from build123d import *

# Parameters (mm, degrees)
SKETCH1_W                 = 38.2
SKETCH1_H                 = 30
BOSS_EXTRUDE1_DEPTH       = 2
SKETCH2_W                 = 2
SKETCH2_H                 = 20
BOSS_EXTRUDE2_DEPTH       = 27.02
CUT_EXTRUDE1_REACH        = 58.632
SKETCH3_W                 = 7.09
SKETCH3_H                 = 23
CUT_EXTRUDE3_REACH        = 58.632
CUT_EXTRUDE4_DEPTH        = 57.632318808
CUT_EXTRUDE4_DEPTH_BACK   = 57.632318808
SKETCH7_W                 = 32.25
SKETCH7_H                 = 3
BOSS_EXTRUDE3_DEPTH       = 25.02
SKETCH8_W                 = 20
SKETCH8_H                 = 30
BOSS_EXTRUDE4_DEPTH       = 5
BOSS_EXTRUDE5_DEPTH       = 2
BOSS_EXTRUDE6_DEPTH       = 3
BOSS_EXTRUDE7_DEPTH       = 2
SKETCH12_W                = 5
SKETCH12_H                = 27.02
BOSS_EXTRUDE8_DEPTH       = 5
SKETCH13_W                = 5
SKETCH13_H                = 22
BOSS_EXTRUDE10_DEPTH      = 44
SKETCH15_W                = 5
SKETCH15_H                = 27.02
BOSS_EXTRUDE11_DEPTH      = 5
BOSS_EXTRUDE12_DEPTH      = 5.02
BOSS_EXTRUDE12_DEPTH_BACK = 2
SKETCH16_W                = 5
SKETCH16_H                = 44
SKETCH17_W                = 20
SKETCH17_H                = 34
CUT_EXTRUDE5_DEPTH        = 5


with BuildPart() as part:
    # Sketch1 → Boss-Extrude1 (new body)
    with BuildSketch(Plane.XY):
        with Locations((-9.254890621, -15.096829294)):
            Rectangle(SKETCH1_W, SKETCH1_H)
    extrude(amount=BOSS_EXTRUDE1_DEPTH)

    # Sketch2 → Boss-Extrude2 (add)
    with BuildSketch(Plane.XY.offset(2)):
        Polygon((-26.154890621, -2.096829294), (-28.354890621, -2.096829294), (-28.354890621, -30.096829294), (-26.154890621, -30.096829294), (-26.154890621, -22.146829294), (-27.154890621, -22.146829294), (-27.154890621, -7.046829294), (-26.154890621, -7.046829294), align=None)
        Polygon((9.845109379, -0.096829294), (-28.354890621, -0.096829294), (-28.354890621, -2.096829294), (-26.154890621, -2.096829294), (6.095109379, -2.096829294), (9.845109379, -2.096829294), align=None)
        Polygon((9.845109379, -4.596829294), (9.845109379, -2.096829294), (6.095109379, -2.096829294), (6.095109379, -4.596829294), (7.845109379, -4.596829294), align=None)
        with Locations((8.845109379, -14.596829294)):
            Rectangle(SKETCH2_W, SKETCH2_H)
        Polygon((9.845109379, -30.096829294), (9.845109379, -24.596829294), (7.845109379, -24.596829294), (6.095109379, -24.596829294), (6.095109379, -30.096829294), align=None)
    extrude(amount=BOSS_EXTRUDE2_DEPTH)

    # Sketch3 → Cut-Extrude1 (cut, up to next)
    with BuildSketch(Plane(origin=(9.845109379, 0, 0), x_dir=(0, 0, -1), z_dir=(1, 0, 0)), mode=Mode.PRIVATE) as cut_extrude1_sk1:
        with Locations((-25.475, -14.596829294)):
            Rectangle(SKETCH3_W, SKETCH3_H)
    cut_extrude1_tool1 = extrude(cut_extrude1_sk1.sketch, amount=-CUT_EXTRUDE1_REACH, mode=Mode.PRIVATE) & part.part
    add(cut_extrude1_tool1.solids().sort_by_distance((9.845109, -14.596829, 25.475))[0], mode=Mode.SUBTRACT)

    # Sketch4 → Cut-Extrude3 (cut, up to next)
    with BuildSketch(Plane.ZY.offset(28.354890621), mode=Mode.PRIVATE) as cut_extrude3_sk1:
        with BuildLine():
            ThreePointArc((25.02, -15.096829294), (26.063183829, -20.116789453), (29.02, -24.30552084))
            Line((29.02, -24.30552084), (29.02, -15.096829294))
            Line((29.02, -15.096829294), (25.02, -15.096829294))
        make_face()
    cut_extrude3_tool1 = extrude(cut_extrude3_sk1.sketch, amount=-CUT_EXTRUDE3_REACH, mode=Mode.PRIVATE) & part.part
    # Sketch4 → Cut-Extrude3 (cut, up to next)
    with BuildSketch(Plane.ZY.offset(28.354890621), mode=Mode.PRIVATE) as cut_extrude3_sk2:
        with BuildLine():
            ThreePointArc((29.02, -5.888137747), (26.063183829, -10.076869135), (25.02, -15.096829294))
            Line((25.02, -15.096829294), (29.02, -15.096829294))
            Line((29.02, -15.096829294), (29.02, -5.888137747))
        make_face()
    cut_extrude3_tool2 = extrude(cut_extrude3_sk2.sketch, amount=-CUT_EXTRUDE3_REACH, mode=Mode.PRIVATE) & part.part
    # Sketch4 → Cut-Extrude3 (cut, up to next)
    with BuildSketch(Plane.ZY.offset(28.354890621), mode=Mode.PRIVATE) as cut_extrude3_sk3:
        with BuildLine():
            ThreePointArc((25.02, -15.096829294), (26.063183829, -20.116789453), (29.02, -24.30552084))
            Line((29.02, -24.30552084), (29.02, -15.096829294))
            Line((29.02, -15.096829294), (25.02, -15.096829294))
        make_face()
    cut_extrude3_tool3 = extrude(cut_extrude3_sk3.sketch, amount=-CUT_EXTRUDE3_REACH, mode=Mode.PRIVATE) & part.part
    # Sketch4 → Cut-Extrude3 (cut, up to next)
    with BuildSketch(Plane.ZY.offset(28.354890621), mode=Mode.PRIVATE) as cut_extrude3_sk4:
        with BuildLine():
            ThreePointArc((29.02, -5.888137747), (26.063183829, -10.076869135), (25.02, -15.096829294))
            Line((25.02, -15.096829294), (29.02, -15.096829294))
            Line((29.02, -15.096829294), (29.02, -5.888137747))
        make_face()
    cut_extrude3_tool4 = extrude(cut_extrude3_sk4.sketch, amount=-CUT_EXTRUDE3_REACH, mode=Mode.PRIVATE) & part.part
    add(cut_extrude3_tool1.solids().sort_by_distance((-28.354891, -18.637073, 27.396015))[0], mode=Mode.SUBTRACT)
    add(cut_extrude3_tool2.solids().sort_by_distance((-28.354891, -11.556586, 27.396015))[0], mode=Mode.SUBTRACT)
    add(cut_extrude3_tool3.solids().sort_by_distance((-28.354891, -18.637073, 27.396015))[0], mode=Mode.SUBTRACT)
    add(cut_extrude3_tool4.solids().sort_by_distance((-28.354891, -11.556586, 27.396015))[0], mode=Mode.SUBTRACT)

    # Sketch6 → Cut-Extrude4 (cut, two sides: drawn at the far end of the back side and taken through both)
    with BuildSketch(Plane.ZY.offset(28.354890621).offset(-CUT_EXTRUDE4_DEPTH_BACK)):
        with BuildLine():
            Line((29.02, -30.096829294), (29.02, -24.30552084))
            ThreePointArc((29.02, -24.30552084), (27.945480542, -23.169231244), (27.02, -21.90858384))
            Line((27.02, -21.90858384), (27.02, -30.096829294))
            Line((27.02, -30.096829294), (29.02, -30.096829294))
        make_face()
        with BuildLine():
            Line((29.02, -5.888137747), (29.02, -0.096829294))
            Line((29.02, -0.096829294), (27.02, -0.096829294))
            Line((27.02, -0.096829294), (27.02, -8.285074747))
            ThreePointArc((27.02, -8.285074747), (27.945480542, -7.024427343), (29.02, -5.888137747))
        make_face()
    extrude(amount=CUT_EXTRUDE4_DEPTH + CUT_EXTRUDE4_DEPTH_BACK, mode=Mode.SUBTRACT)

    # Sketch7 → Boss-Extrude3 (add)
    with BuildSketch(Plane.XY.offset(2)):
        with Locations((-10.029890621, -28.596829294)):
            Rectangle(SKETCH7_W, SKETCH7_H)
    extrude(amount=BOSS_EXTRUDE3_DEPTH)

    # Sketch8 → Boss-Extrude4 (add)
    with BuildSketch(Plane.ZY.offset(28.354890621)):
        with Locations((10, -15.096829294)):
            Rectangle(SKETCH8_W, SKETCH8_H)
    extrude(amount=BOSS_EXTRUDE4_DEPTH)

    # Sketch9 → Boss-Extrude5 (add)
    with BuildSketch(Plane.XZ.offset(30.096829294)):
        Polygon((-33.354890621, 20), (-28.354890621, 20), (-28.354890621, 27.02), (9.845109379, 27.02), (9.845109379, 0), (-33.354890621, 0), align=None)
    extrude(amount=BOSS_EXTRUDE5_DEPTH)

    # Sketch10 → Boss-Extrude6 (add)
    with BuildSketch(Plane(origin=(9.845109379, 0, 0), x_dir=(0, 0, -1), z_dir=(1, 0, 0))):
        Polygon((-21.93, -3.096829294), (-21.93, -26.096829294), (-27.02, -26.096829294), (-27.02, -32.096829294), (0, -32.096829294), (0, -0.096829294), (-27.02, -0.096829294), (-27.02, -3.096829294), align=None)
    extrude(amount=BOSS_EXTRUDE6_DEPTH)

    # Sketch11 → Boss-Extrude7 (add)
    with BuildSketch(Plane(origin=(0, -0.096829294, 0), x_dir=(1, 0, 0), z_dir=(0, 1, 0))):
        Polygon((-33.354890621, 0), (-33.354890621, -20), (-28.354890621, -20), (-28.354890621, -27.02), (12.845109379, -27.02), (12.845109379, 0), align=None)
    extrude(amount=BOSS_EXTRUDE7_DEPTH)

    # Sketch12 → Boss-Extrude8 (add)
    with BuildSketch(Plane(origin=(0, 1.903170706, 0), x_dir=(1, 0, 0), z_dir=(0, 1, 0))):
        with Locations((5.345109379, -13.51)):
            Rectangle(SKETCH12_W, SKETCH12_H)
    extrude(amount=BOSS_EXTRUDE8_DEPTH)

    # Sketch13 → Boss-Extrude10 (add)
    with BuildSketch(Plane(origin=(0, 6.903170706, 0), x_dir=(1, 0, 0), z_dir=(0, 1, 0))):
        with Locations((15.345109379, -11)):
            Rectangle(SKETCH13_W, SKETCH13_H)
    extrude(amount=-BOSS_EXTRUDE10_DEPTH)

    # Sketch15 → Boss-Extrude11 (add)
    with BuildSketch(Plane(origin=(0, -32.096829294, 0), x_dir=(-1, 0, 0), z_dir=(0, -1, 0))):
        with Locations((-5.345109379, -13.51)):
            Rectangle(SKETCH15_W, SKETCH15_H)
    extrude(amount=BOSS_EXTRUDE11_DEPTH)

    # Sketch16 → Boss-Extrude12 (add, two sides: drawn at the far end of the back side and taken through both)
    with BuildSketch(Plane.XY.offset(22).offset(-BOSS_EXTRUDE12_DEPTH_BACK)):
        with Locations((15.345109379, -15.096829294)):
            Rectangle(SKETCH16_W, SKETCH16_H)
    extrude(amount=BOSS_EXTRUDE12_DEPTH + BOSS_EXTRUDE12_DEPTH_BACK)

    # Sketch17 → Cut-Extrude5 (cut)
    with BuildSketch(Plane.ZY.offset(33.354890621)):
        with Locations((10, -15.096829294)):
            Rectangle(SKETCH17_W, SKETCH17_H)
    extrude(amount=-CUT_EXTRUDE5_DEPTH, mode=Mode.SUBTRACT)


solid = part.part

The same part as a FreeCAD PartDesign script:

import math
import FreeCAD as App
import Part
import Sketcher

V = App.Vector

doc = App.newDocument("Part")
body = doc.addObject("PartDesign::Body", "Body")

sketch1 = body.newObject("Sketcher::SketchObject", "Sketch")
sketch1.AttachmentSupport = (doc.getObject("XY_Plane"), [""])
sketch1.MapMode = "FlatFace"
sketch1.addGeometry(Part.LineSegment(V(-28, 0, 0), V(-28, -30, 0)), False)
sketch1.addGeometry(Part.LineSegment(V(-28, -30, 0), V(10, -30, 0)), False)
sketch1.addGeometry(Part.LineSegment(V(10, -30, 0), V(10, 0, 0)), False)
sketch1.addGeometry(Part.LineSegment(V(10, 0, 0), V(-28, 0, 0)), False)
sketch1.addConstraint(Sketcher.Constraint("Coincident", 0, 2, 1, 1))
sketch1.addConstraint(Sketcher.Constraint("Coincident", 1, 2, 2, 1))
sketch1.addConstraint(Sketcher.Constraint("Coincident", 2, 2, 3, 1))
sketch1.addConstraint(Sketcher.Constraint("Coincident", 3, 2, 0, 1))
sketch1.addConstraint(Sketcher.Constraint("Vertical", 0))
sketch1.addConstraint(Sketcher.Constraint("Horizontal", 1))
sketch1.addConstraint(Sketcher.Constraint("Vertical", 2))
sketch1.addConstraint(Sketcher.Constraint("Horizontal", 3))
sketch1.addConstraint(Sketcher.Constraint("DistanceY", 0, 2, 0, 1, 30.0))
sketch1.addConstraint(Sketcher.Constraint("DistanceX", 1, 1, 1, 2, 38.2))
sketch1.addConstraint(Sketcher.Constraint("DistanceX", 0, 2, -1, 1, 28.354891))
sketch1.addConstraint(Sketcher.Constraint("DistanceY", 0, 2, -1, 1, 30.096829))
pad1 = body.newObject("PartDesign::Pad", "Pad")
pad1.Profile = sketch1
pad1.Length = 2

sketch2 = body.newObject("Sketcher::SketchObject", "Sketch001")
sketch2.AttachmentSupport = (doc.getObject("XY_Plane"), [""])
sketch2.MapMode = "FlatFace"
sketch2.AttachmentOffset = App.Placement(V(0, 0, 2), App.Rotation())
sketch2.addGeometry(Part.LineSegment(V(-28.4, -30.1, 0), V(-26.2, -30.1, 0)), False)
sketch2.addGeometry(Part.LineSegment(V(-26.2, -30.1, 0), V(-26.2, -22.1, 0)), False)
sketch2.addGeometry(Part.LineSegment(V(-26.2, -22.1, 0), V(-27.2, -22.1, 0)), False)
sketch2.addGeometry(Part.LineSegment(V(-27.2, -22.1, 0), V(-27.2, -7, 0)), False)
sketch2.addGeometry(Part.LineSegment(V(-27.2, -7, 0), V(-26.2, -7, 0)), False)
sketch2.addGeometry(Part.LineSegment(V(-26.2, -7, 0), V(-26.2, -2.1, 0)), False)
sketch2.addGeometry(Part.LineSegment(V(-26.2, -2.1, 0), V(6.1, -2.1, 0)), False)
sketch2.addGeometry(Part.LineSegment(V(6.1, -2.1, 0), V(6.1, -4.6, 0)), False)
sketch2.addGeometry(Part.LineSegment(V(6.1, -4.6, 0), V(7.8, -4.6, 0)), False)
sketch2.addGeometry(Part.LineSegment(V(7.8, -4.6, 0), V(7.8, -24.6, 0)), False)
sketch2.addGeometry(Part.LineSegment(V(7.8, -24.6, 0), V(6.1, -24.6, 0)), False)
sketch2.addGeometry(Part.LineSegment(V(6.1, -24.6, 0), V(6.1, -30.1, 0)), False)
sketch2.addGeometry(Part.LineSegment(V(6.1, -30.1, 0), V(9.8, -30.1, 0)), False)
sketch2.addGeometry(Part.LineSegment(V(9.8, -30.1, 0), V(9.8, -0.1, 0)), False)
sketch2.addGeometry(Part.LineSegment(V(9.8, -0.1, 0), V(-28.4, -0.1, 0)), False)
sketch2.addGeometry(Part.LineSegment(V(-28.4, -0.1, 0), V(-28.4, -30.1, 0)), False)
sketch2.addConstraint(Sketcher.Constraint("Coincident", 0, 2, 1, 1))
sketch2.addConstraint(Sketcher.Constraint("Coincident", 1, 2, 2, 1))
sketch2.addConstraint(Sketcher.Constraint("Coincident", 2, 2, 3, 1))
sketch2.addConstraint(Sketcher.Constraint("Coincident", 3, 2, 4, 1))
sketch2.addConstraint(Sketcher.Constraint("Coincident", 4, 2, 5, 1))
sketch2.addConstraint(Sketcher.Constraint("Coincident", 5, 2, 6, 1))
sketch2.addConstraint(Sketcher.Constraint("Coincident", 6, 2, 7, 1))
sketch2.addConstraint(Sketcher.Constraint("Coincident", 7, 2, 8, 1))
sketch2.addConstraint(Sketcher.Constraint("Coincident", 8, 2, 9, 1))
sketch2.addConstraint(Sketcher.Constraint("Coincident", 9, 2, 10, 1))
sketch2.addConstraint(Sketcher.Constraint("Coincident", 10, 2, 11, 1))
sketch2.addConstraint(Sketcher.Constraint("Coincident", 11, 2, 12, 1))
sketch2.addConstraint(Sketcher.Constraint("Coincident", 12, 2, 13, 1))
sketch2.addConstraint(Sketcher.Constraint("Coincident", 13, 2, 14, 1))
sketch2.addConstraint(Sketcher.Constraint("Coincident", 14, 2, 15, 1))
sketch2.addConstraint(Sketcher.Constraint("Coincident", 15, 2, 0, 1))
sketch2.addConstraint(Sketcher.Constraint("Horizontal", 0))
sketch2.addConstraint(Sketcher.Constraint("Vertical", 1))
sketch2.addConstraint(Sketcher.Constraint("Horizontal", 2))
sketch2.addConstraint(Sketcher.Constraint("Vertical", 3))
sketch2.addConstraint(Sketcher.Constraint("Horizontal", 4))
sketch2.addConstraint(Sketcher.Constraint("Vertical", 5))
sketch2.addConstraint(Sketcher.Constraint("Horizontal", 6))
sketch2.addConstraint(Sketcher.Constraint("Vertical", 7))
sketch2.addConstraint(Sketcher.Constraint("Horizontal", 8))
sketch2.addConstraint(Sketcher.Constraint("Vertical", 9))
sketch2.addConstraint(Sketcher.Constraint("Horizontal", 10))
sketch2.addConstraint(Sketcher.Constraint("Vertical", 11))
sketch2.addConstraint(Sketcher.Constraint("Horizontal", 12))
sketch2.addConstraint(Sketcher.Constraint("Vertical", 13))
sketch2.addConstraint(Sketcher.Constraint("Horizontal", 14))
sketch2.addConstraint(Sketcher.Constraint("Vertical", 15))
sketch2.addConstraint(Sketcher.Constraint("Horizontal", 0, 2, 11, 2))
sketch2.addConstraint(Sketcher.Constraint("Vertical", 1, 2, 4, 2))
sketch2.addConstraint(Sketcher.Constraint("Vertical", 7, 2, 10, 2))
sketch2.addConstraint(Sketcher.Constraint("DistanceX", 2, 2, 2, 1, 1.0))
sketch2.addConstraint(Sketcher.Constraint("DistanceY", 9, 2, 9, 1, 20.0))
sketch2.addConstraint(Sketcher.Constraint("DistanceY", 13, 1, 13, 2, 30.0))
sketch2.addConstraint(Sketcher.Constraint("DistanceX", 0, 1, 0, 2, 2.2))
sketch2.addConstraint(Sketcher.Constraint("DistanceX", 14, 2, 14, 1, 38.2))
sketch2.addConstraint(Sketcher.Constraint("DistanceY", 3, 1, 3, 2, 15.1))
sketch2.addConstraint(Sketcher.Constraint("DistanceY", 7, 2, 7, 1, 2.5))
sketch2.addConstraint(Sketcher.Constraint("DistanceY", 11, 2, 11, 1, 5.5))
sketch2.addConstraint(Sketcher.Constraint("DistanceX", 4, 2, 8, 2, 34.0))
sketch2.addConstraint(Sketcher.Constraint("DistanceX", 6, 1, 6, 2, 32.25))
sketch2.addConstraint(Sketcher.Constraint("DistanceY", 1, 1, 1, 2, 7.95))
sketch2.addConstraint(Sketcher.Constraint("DistanceX", 0, 2, -1, 1, 26.154891))
sketch2.addConstraint(Sketcher.Constraint("DistanceY", 0, 2, -1, 1, 30.096829))
pad2 = body.newObject("PartDesign::Pad", "Pad001")
pad2.Profile = sketch2
pad2.Length = 27.02

sketch3 = body.newObject("Sketcher::SketchObject", "Sketch002")
sketch3.AttachmentSupport = (doc.getObject("YZ_Plane"), [""])
sketch3.MapMode = "FlatFace"
sketch3.AttachmentOffset = App.Placement(V(0, 0, 9.845109), App.Rotation())
sketch3.addGeometry(Part.LineSegment(V(-3, 29, 0), V(-26, 29, 0)), False)
sketch3.addGeometry(Part.LineSegment(V(-26, 29, 0), V(-26, 22, 0)), False)
sketch3.addGeometry(Part.LineSegment(V(-26, 22, 0), V(-3, 22, 0)), False)
sketch3.addGeometry(Part.LineSegment(V(-3, 22, 0), V(-3, 29, 0)), False)
sketch3.addConstraint(Sketcher.Constraint("Coincident", 0, 2, 1, 1))
sketch3.addConstraint(Sketcher.Constraint("Coincident", 1, 2, 2, 1))
sketch3.addConstraint(Sketcher.Constraint("Coincident", 2, 2, 3, 1))
sketch3.addConstraint(Sketcher.Constraint("Coincident", 3, 2, 0, 1))
sketch3.addConstraint(Sketcher.Constraint("Horizontal", 0))
sketch3.addConstraint(Sketcher.Constraint("Vertical", 1))
sketch3.addConstraint(Sketcher.Constraint("Horizontal", 2))
sketch3.addConstraint(Sketcher.Constraint("Vertical", 3))
sketch3.addConstraint(Sketcher.Constraint("DistanceX", 0, 2, 0, 1, 23.0))
sketch3.addConstraint(Sketcher.Constraint("DistanceY", 1, 2, 1, 1, 7.09))
sketch3.addConstraint(Sketcher.Constraint("DistanceY", -1, 1, 0, 2, 29.02))
sketch3.addConstraint(Sketcher.Constraint("DistanceX", 0, 2, -1, 1, 26.096829))
pocket1 = body.newObject("PartDesign::Pocket", "Pocket")
pocket1.Profile = sketch3
pocket1.Length = 3.75

sketch4 = body.newObject("Sketcher::SketchObject", "Sketch003")
sketch4.AttachmentSupport = (doc.getObject("YZ_Plane"), [""])
sketch4.MapMode = "FlatFace"
sketch4.AttachmentOffset = App.Placement(V(0, 0, -28.354891), App.Rotation())
sketch4.addGeometry(Part.ArcOfCircle(Part.Circle(V(-15.1, 37.6, 0), V(0, 0, 1), 12.6), math.radians(-137), math.radians(-90)), False)
sketch4.addGeometry(Part.LineSegment(V(-24.3, 29, 0), V(-15.1, 29, 0)), False)
sketch4.addGeometry(Part.LineSegment(V(-15.1, 29, 0), V(-15.1, 25, 0)), False)
sketch4.addConstraint(Sketcher.Constraint("Coincident", 0, 1, 1, 1))
sketch4.addConstraint(Sketcher.Constraint("Coincident", 1, 2, 2, 1))
sketch4.addConstraint(Sketcher.Constraint("Coincident", 2, 2, 0, 2))
sketch4.addConstraint(Sketcher.Constraint("Horizontal", 1))
sketch4.addConstraint(Sketcher.Constraint("Vertical", 2))
sketch4.addConstraint(Sketcher.Constraint("Vertical", 0, 3, 1, 2))
sketch4.addConstraint(Sketcher.Constraint("Radius", 0, 12.6))
sketch4.addConstraint(Sketcher.Constraint("DistanceY", 2, 2, 2, 1, 4.0))
sketch4.addConstraint(Sketcher.Constraint("DistanceY", -1, 1, 0, 3, 37.62))
sketch4.addConstraint(Sketcher.Constraint("DistanceX", 0, 3, -1, 1, 15.096829))
pocket2 = body.newObject("PartDesign::Pocket", "Pocket001")
pocket2.Profile = sketch4
pocket2.Length = 2.2
pocket2.Reversed = True

sketch5 = body.newObject("Sketcher::SketchObject", "Sketch004")
sketch5.AttachmentSupport = (doc.getObject("YZ_Plane"), [""])
sketch5.MapMode = "FlatFace"
sketch5.AttachmentOffset = App.Placement(V(0, 0, -28.354891), App.Rotation())
sketch5.addGeometry(Part.ArcOfCircle(Part.Circle(V(-15.1, 37.6, 0), V(0, 0, 1), 12.6), math.radians(-90), math.radians(-43)), False)
sketch5.addGeometry(Part.LineSegment(V(-15.1, 25, 0), V(-15.1, 29, 0)), False)
sketch5.addGeometry(Part.LineSegment(V(-15.1, 29, 0), V(-5.9, 29, 0)), False)
sketch5.addConstraint(Sketcher.Constraint("Coincident", 0, 1, 1, 1))
sketch5.addConstraint(Sketcher.Constraint("Coincident", 1, 2, 2, 1))
sketch5.addConstraint(Sketcher.Constraint("Coincident", 2, 2, 0, 2))
sketch5.addConstraint(Sketcher.Constraint("Vertical", 1))
sketch5.addConstraint(Sketcher.Constraint("Horizontal", 2))
sketch5.addConstraint(Sketcher.Constraint("Radius", 0, 12.6))
sketch5.addConstraint(Sketcher.Constraint("DistanceY", 1, 1, 1, 2, 4.0))
sketch5.addConstraint(Sketcher.Constraint("DistanceY", -1, 1, 0, 3, 37.62))
sketch5.addConstraint(Sketcher.Constraint("DistanceX", 2, 1, 2, 2, 9.208692))
sketch5.addConstraint(Sketcher.Constraint("DistanceX", 0, 3, -1, 1, 15.096829))
pocket3 = body.newObject("PartDesign::Pocket", "Pocket002")
pocket3.Profile = sketch5
pocket3.Type = "UpToFirst"
pocket3.Reversed = True

sketch6 = body.newObject("Sketcher::SketchObject", "Sketch005")
sketch6.AttachmentSupport = (doc.getObject("YZ_Plane"), [""])
sketch6.MapMode = "FlatFace"
sketch6.AttachmentOffset = App.Placement(V(0, 0, -28.354891), App.Rotation())
sketch6.addGeometry(Part.ArcOfCircle(Part.Circle(V(-15.1, 37.6, 0), V(0, 0, 1), 12.6), math.radians(-137), math.radians(-90)), False)
sketch6.addGeometry(Part.LineSegment(V(-24.3, 29, 0), V(-15.1, 29, 0)), False)
sketch6.addGeometry(Part.LineSegment(V(-15.1, 29, 0), V(-15.1, 25, 0)), False)
sketch6.addConstraint(Sketcher.Constraint("Coincident", 0, 1, 1, 1))
sketch6.addConstraint(Sketcher.Constraint("Coincident", 1, 2, 2, 1))
sketch6.addConstraint(Sketcher.Constraint("Coincident", 2, 2, 0, 2))
sketch6.addConstraint(Sketcher.Constraint("Horizontal", 1))
sketch6.addConstraint(Sketcher.Constraint("Vertical", 2))
sketch6.addConstraint(Sketcher.Constraint("Vertical", 0, 3, 1, 2))
sketch6.addConstraint(Sketcher.Constraint("Radius", 0, 12.6))
sketch6.addConstraint(Sketcher.Constraint("DistanceY", 2, 2, 2, 1, 4.0))
sketch6.addConstraint(Sketcher.Constraint("DistanceY", -1, 1, 0, 3, 37.62))
sketch6.addConstraint(Sketcher.Constraint("DistanceX", 0, 3, -1, 1, 15.096829))
pocket4 = body.newObject("PartDesign::Pocket", "Pocket003")
pocket4.Profile = sketch6
pocket4.Length = 2.2
pocket4.Reversed = True

sketch7 = body.newObject("Sketcher::SketchObject", "Sketch006")
sketch7.AttachmentSupport = (doc.getObject("YZ_Plane"), [""])
sketch7.MapMode = "FlatFace"
sketch7.AttachmentOffset = App.Placement(V(0, 0, -28.354891), App.Rotation())
sketch7.addGeometry(Part.ArcOfCircle(Part.Circle(V(-15.1, 37.6, 0), V(0, 0, 1), 12.6), math.radians(-90), math.radians(-43)), False)
sketch7.addGeometry(Part.LineSegment(V(-15.1, 25, 0), V(-15.1, 29, 0)), False)
sketch7.addGeometry(Part.LineSegment(V(-15.1, 29, 0), V(-5.9, 29, 0)), False)
sketch7.addConstraint(Sketcher.Constraint("Coincident", 0, 1, 1, 1))
sketch7.addConstraint(Sketcher.Constraint("Coincident", 1, 2, 2, 1))
sketch7.addConstraint(Sketcher.Constraint("Coincident", 2, 2, 0, 2))
sketch7.addConstraint(Sketcher.Constraint("Vertical", 1))
sketch7.addConstraint(Sketcher.Constraint("Horizontal", 2))
sketch7.addConstraint(Sketcher.Constraint("Radius", 0, 12.6))
sketch7.addConstraint(Sketcher.Constraint("DistanceY", 1, 1, 1, 2, 4.0))
sketch7.addConstraint(Sketcher.Constraint("DistanceY", -1, 1, 0, 3, 37.62))
sketch7.addConstraint(Sketcher.Constraint("DistanceX", 2, 1, 2, 2, 9.208692))
sketch7.addConstraint(Sketcher.Constraint("DistanceX", 0, 3, -1, 1, 15.096829))
pocket5 = body.newObject("PartDesign::Pocket", "Pocket004")
pocket5.Profile = sketch7
pocket5.Length = 2.2
pocket5.Reversed = True

sketch8 = body.newObject("Sketcher::SketchObject", "Sketch007")
sketch8.AttachmentSupport = (doc.getObject("YZ_Plane"), [""])
sketch8.MapMode = "FlatFace"
sketch8.AttachmentOffset = App.Placement(V(0, 0, -28.354891), App.Rotation())
sketch8.addGeometry(Part.LineSegment(V(-30.1, 29, 0), V(-24.3, 29, 0)), False)
sketch8.addGeometry(Part.ArcOfCircle(Part.Circle(V(-15.1, 37.6, 0), V(0, 0, 1), 12.6), math.radians(-136.96), math.radians(-122.73)), False)
sketch8.addGeometry(Part.LineSegment(V(-21.9, 27, 0), V(-30.1, 27, 0)), False)
sketch8.addGeometry(Part.LineSegment(V(-30.1, 27, 0), V(-30.1, 29, 0)), False)
sketch8.addGeometry(Part.LineSegment(V(-5.9, 29, 0), V(-0.1, 29, 0)), False)
sketch8.addGeometry(Part.LineSegment(V(-0.1, 29, 0), V(-0.1, 27, 0)), False)
sketch8.addGeometry(Part.LineSegment(V(-0.1, 27, 0), V(-8.3, 27, 0)), False)
sketch8.addGeometry(Part.ArcOfCircle(Part.Circle(V(-15.1, 37.6, 0), V(0, 0, 1), 12.6), math.radians(-57.27), math.radians(-43.04)), False)
sketch8.addConstraint(Sketcher.Constraint("Coincident", 0, 2, 1, 1))
sketch8.addConstraint(Sketcher.Constraint("Coincident", 1, 2, 2, 1))
sketch8.addConstraint(Sketcher.Constraint("Coincident", 2, 2, 3, 1))
sketch8.addConstraint(Sketcher.Constraint("Coincident", 3, 2, 0, 1))
sketch8.addConstraint(Sketcher.Constraint("Coincident", 4, 2, 5, 1))
sketch8.addConstraint(Sketcher.Constraint("Coincident", 5, 2, 6, 1))
sketch8.addConstraint(Sketcher.Constraint("Coincident", 6, 2, 7, 1))
sketch8.addConstraint(Sketcher.Constraint("Coincident", 7, 2, 4, 1))
sketch8.addConstraint(Sketcher.Constraint("Horizontal", 0))
sketch8.addConstraint(Sketcher.Constraint("Horizontal", 2))
sketch8.addConstraint(Sketcher.Constraint("Vertical", 3))
sketch8.addConstraint(Sketcher.Constraint("Horizontal", 4))
sketch8.addConstraint(Sketcher.Constraint("Vertical", 5))
sketch8.addConstraint(Sketcher.Constraint("Horizontal", 6))
sketch8.addConstraint(Sketcher.Constraint("Coincident", 7, 3, 1, 3))
sketch8.addConstraint(Sketcher.Constraint("Equal", 1, 7))
sketch8.addConstraint(Sketcher.Constraint("Horizontal", 3, 2, 4, 2))
sketch8.addConstraint(Sketcher.Constraint("Horizontal", 2, 2, 5, 2))
sketch8.addConstraint(Sketcher.Constraint("Equal", 0, 4))
sketch8.addConstraint(Sketcher.Constraint("Radius", 1, 12.6))
sketch8.addConstraint(Sketcher.Constraint("DistanceY", 3, 1, 3, 2, 2.0))
sketch8.addConstraint(Sketcher.Constraint("DistanceX", 2, 2, 7, 3, 15.0))
sketch8.addConstraint(Sketcher.Constraint("DistanceY", 0, 2, 7, 3, 8.6))
sketch8.addConstraint(Sketcher.Constraint("DistanceY", -1, 1, 1, 3, 37.62))
sketch8.addConstraint(Sketcher.Constraint("DistanceX", 1, 3, -1, 1, 15.096829))
pocket6 = body.newObject("PartDesign::Pocket", "Pocket005")
pocket6.Profile = sketch8
pocket6.Type = "ThroughAll"
pocket6.Midplane = True

sketch9 = body.newObject("Sketcher::SketchObject", "Sketch008")
sketch9.AttachmentSupport = (doc.getObject("XY_Plane"), [""])
sketch9.MapMode = "FlatFace"
sketch9.AttachmentOffset = App.Placement(V(0, 0, 2), App.Rotation())
sketch9.addGeometry(Part.LineSegment(V(-26.2, -27.1, 0), V(-26.2, -30.1, 0)), False)
sketch9.addGeometry(Part.LineSegment(V(-26.2, -30.1, 0), V(6.1, -30.1, 0)), False)
sketch9.addGeometry(Part.LineSegment(V(6.1, -30.1, 0), V(6.1, -27.1, 0)), False)
sketch9.addGeometry(Part.LineSegment(V(6.1, -27.1, 0), V(-26.2, -27.1, 0)), False)
sketch9.addConstraint(Sketcher.Constraint("Coincident", 0, 2, 1, 1))
sketch9.addConstraint(Sketcher.Constraint("Coincident", 1, 2, 2, 1))
sketch9.addConstraint(Sketcher.Constraint("Coincident", 2, 2, 3, 1))
sketch9.addConstraint(Sketcher.Constraint("Coincident", 3, 2, 0, 1))
sketch9.addConstraint(Sketcher.Constraint("Vertical", 0))
sketch9.addConstraint(Sketcher.Constraint("Horizontal", 1))
sketch9.addConstraint(Sketcher.Constraint("Vertical", 2))
sketch9.addConstraint(Sketcher.Constraint("Horizontal", 3))
sketch9.addConstraint(Sketcher.Constraint("DistanceY", 0, 2, 0, 1, 3.0))
sketch9.addConstraint(Sketcher.Constraint("DistanceX", 1, 1, 1, 2, 32.25))
sketch9.addConstraint(Sketcher.Constraint("DistanceX", 0, 2, -1, 1, 26.154891))
sketch9.addConstraint(Sketcher.Constraint("DistanceY", 0, 2, -1, 1, 30.096829))
pad3 = body.newObject("PartDesign::Pad", "Pad002")
pad3.Profile = sketch9
pad3.Length = 25.02

sketch10 = body.newObject("Sketcher::SketchObject", "Sketch009")
sketch10.AttachmentSupport = (doc.getObject("YZ_Plane"), [""])
sketch10.MapMode = "FlatFace"
sketch10.AttachmentOffset = App.Placement(V(0, 0, -28.354891), App.Rotation())
sketch10.addGeometry(Part.LineSegment(V(0, 0, 0), V(-30, 0, 0)), False)
sketch10.addGeometry(Part.LineSegment(V(-30, 0, 0), V(-30, 20, 0)), False)
sketch10.addGeometry(Part.LineSegment(V(-30, 20, 0), V(0, 20, 0)), False)
sketch10.addGeometry(Part.LineSegment(V(0, 20, 0), V(0, 0, 0)), False)
sketch10.addConstraint(Sketcher.Constraint("Coincident", 0, 2, 1, 1))
sketch10.addConstraint(Sketcher.Constraint("Coincident", 1, 2, 2, 1))
sketch10.addConstraint(Sketcher.Constraint("Coincident", 2, 2, 3, 1))
sketch10.addConstraint(Sketcher.Constraint("Coincident", 3, 2, 0, 1))
sketch10.addConstraint(Sketcher.Constraint("Horizontal", 0))
sketch10.addConstraint(Sketcher.Constraint("Vertical", 1))
sketch10.addConstraint(Sketcher.Constraint("Horizontal", 2))
sketch10.addConstraint(Sketcher.Constraint("Vertical", 3))
sketch10.addConstraint(Sketcher.Constraint("PointOnObject", 0, 2, -1))
sketch10.addConstraint(Sketcher.Constraint("DistanceX", 0, 2, 0, 1, 30.0))
sketch10.addConstraint(Sketcher.Constraint("DistanceY", 1, 1, 1, 2, 20.0))
sketch10.addConstraint(Sketcher.Constraint("DistanceX", 0, 2, -1, 1, 30.096829))
pad4 = body.newObject("PartDesign::Pad", "Pad003")
pad4.Profile = sketch10
pad4.Length = 5
pad4.Reversed = True

sketch11 = body.newObject("Sketcher::SketchObject", "Sketch010")
sketch11.AttachmentSupport = (doc.getObject("XZ_Plane"), [""])
sketch11.MapMode = "FlatFace"
sketch11.AttachmentOffset = App.Placement(V(0, 0, 30.096829), App.Rotation())
sketch11.addGeometry(Part.LineSegment(V(-28, 20, 0), V(-33, 20, 0)), False)
sketch11.addGeometry(Part.LineSegment(V(-33, 20, 0), V(-33, 0, 0)), False)
sketch11.addGeometry(Part.LineSegment(V(-33, 0, 0), V(10, 0, 0)), False)
sketch11.addGeometry(Part.LineSegment(V(10, 0, 0), V(10, 27, 0)), False)
sketch11.addGeometry(Part.LineSegment(V(10, 27, 0), V(-28, 27, 0)), False)
sketch11.addGeometry(Part.LineSegment(V(-28, 27, 0), V(-28, 20, 0)), False)
sketch11.addConstraint(Sketcher.Constraint("Coincident", 0, 2, 1, 1))
sketch11.addConstraint(Sketcher.Constraint("Coincident", 1, 2, 2, 1))
sketch11.addConstraint(Sketcher.Constraint("Coincident", 2, 2, 3, 1))
sketch11.addConstraint(Sketcher.Constraint("Coincident", 3, 2, 4, 1))
sketch11.addConstraint(Sketcher.Constraint("Coincident", 4, 2, 5, 1))
sketch11.addConstraint(Sketcher.Constraint("Coincident", 5, 2, 0, 1))
sketch11.addConstraint(Sketcher.Constraint("Horizontal", 0))
sketch11.addConstraint(Sketcher.Constraint("Vertical", 1))
sketch11.addConstraint(Sketcher.Constraint("Horizontal", 2))
sketch11.addConstraint(Sketcher.Constraint("Vertical", 3))
sketch11.addConstraint(Sketcher.Constraint("Horizontal", 4))
sketch11.addConstraint(Sketcher.Constraint("Vertical", 5))
sketch11.addConstraint(Sketcher.Constraint("PointOnObject", 1, 2, -1))
sketch11.addConstraint(Sketcher.Constraint("DistanceX", 0, 2, 0, 1, 5.0))
sketch11.addConstraint(Sketcher.Constraint("DistanceY", 1, 2, 1, 1, 20.0))
sketch11.addConstraint(Sketcher.Constraint("DistanceX", 2, 1, 2, 2, 43.2))
sketch11.addConstraint(Sketcher.Constraint("DistanceY", 3, 1, 3, 2, 27.02))
sketch11.addConstraint(Sketcher.Constraint("DistanceX", 0, 2, -1, 1, 33.354891))
pad5 = body.newObject("PartDesign::Pad", "Pad004")
pad5.Profile = sketch11
pad5.Length = 2

sketch12 = body.newObject("Sketcher::SketchObject", "Sketch011")
sketch12.AttachmentSupport = (doc.getObject("YZ_Plane"), [""])
sketch12.MapMode = "FlatFace"
sketch12.AttachmentOffset = App.Placement(V(0, 0, 9.845109), App.Rotation())
sketch12.addGeometry(Part.LineSegment(V(-3.1, 21.9, 0), V(-26.1, 21.9, 0)), False)
sketch12.addGeometry(Part.LineSegment(V(-26.1, 21.9, 0), V(-26.1, 27, 0)), False)
sketch12.addGeometry(Part.LineSegment(V(-26.1, 27, 0), V(-32.1, 27, 0)), False)
sketch12.addGeometry(Part.LineSegment(V(-32.1, 27, 0), V(-32.1, 0, 0)), False)
sketch12.addGeometry(Part.LineSegment(V(-32.1, 0, 0), V(-0.1, 0, 0)), False)
sketch12.addGeometry(Part.LineSegment(V(-0.1, 0, 0), V(-0.1, 27, 0)), False)
sketch12.addGeometry(Part.LineSegment(V(-0.1, 27, 0), V(-3.1, 27, 0)), False)
sketch12.addGeometry(Part.LineSegment(V(-3.1, 27, 0), V(-3.1, 21.9, 0)), False)
sketch12.addConstraint(Sketcher.Constraint("Coincident", 0, 2, 1, 1))
sketch12.addConstraint(Sketcher.Constraint("Coincident", 1, 2, 2, 1))
sketch12.addConstraint(Sketcher.Constraint("Coincident", 2, 2, 3, 1))
sketch12.addConstraint(Sketcher.Constraint("Coincident", 3, 2, 4, 1))
sketch12.addConstraint(Sketcher.Constraint("Coincident", 4, 2, 5, 1))
sketch12.addConstraint(Sketcher.Constraint("Coincident", 5, 2, 6, 1))
sketch12.addConstraint(Sketcher.Constraint("Coincident", 6, 2, 7, 1))
sketch12.addConstraint(Sketcher.Constraint("Coincident", 7, 2, 0, 1))
sketch12.addConstraint(Sketcher.Constraint("Horizontal", 0))
sketch12.addConstraint(Sketcher.Constraint("Vertical", 1))
sketch12.addConstraint(Sketcher.Constraint("Horizontal", 2))
sketch12.addConstraint(Sketcher.Constraint("Vertical", 3))
sketch12.addConstraint(Sketcher.Constraint("Horizontal", 4))
sketch12.addConstraint(Sketcher.Constraint("Vertical", 5))
sketch12.addConstraint(Sketcher.Constraint("Horizontal", 6))
sketch12.addConstraint(Sketcher.Constraint("Vertical", 7))
sketch12.addConstraint(Sketcher.Constraint("PointOnObject", 3, 2, -1))
sketch12.addConstraint(Sketcher.Constraint("Horizontal", 2, 2, 5, 2))
sketch12.addConstraint(Sketcher.Constraint("DistanceX", 0, 2, 0, 1, 23.0))
sketch12.addConstraint(Sketcher.Constraint("DistanceX", 2, 2, 2, 1, 6.0))
sketch12.addConstraint(Sketcher.Constraint("DistanceX", 4, 1, 4, 2, 32.0))
sketch12.addConstraint(Sketcher.Constraint("DistanceY", 1, 1, 1, 2, 5.09))
sketch12.addConstraint(Sketcher.Constraint("DistanceY", 3, 2, 3, 1, 27.02))
sketch12.addConstraint(Sketcher.Constraint("DistanceX", 0, 2, -1, 1, 26.096829))
pad6 = body.newObject("PartDesign::Pad", "Pad005")
pad6.Profile = sketch12
pad6.Length = 3

sketch13 = body.newObject("Sketcher::SketchObject", "Sketch012")
sketch13.AttachmentSupport = (doc.getObject("XZ_Plane"), [""])
sketch13.MapMode = "FlatFace"
sketch13.AttachmentOffset = App.Placement(V(0, 0, 0.096829), App.Rotation())
sketch13.addGeometry(Part.LineSegment(V(-33, 0, 0), V(-33, 20, 0)), False)
sketch13.addGeometry(Part.LineSegment(V(-33, 20, 0), V(-28, 20, 0)), False)
sketch13.addGeometry(Part.LineSegment(V(-28, 20, 0), V(-28, 27, 0)), False)
sketch13.addGeometry(Part.LineSegment(V(-28, 27, 0), V(13, 27, 0)), False)
sketch13.addGeometry(Part.LineSegment(V(13, 27, 0), V(13, 0, 0)), False)
sketch13.addGeometry(Part.LineSegment(V(13, 0, 0), V(-33, 0, 0)), False)
sketch13.addConstraint(Sketcher.Constraint("Coincident", 0, 2, 1, 1))
sketch13.addConstraint(Sketcher.Constraint("Coincident", 1, 2, 2, 1))
sketch13.addConstraint(Sketcher.Constraint("Coincident", 2, 2, 3, 1))
sketch13.addConstraint(Sketcher.Constraint("Coincident", 3, 2, 4, 1))
sketch13.addConstraint(Sketcher.Constraint("Coincident", 4, 2, 5, 1))
sketch13.addConstraint(Sketcher.Constraint("Coincident", 5, 2, 0, 1))
sketch13.addConstraint(Sketcher.Constraint("Vertical", 0))
sketch13.addConstraint(Sketcher.Constraint("Horizontal", 1))
sketch13.addConstraint(Sketcher.Constraint("Vertical", 2))
sketch13.addConstraint(Sketcher.Constraint("Horizontal", 3))
sketch13.addConstraint(Sketcher.Constraint("Vertical", 4))
sketch13.addConstraint(Sketcher.Constraint("Horizontal", 5))
sketch13.addConstraint(Sketcher.Constraint("PointOnObject", 4, 2, -1))
sketch13.addConstraint(Sketcher.Constraint("DistanceX", 1, 1, 1, 2, 5.0))
sketch13.addConstraint(Sketcher.Constraint("DistanceY", 0, 1, 0, 2, 20.0))
sketch13.addConstraint(Sketcher.Constraint("DistanceX", 3, 1, 3, 2, 41.2))
sketch13.addConstraint(Sketcher.Constraint("DistanceY", 2, 1, 2, 2, 7.02))
sketch13.addConstraint(Sketcher.Constraint("DistanceX", 0, 2, -1, 1, 33.354891))
pad7 = body.newObject("PartDesign::Pad", "Pad006")
pad7.Profile = sketch13
pad7.Length = 2
pad7.Reversed = True

sketch14 = body.newObject("Sketcher::SketchObject", "Sketch013")
sketch14.AttachmentSupport = (doc.getObject("XZ_Plane"), [""])
sketch14.MapMode = "FlatFace"
sketch14.AttachmentOffset = App.Placement(V(0, 0, -1.903171), App.Rotation())
sketch14.addGeometry(Part.LineSegment(V(3, 0, 0), V(3, 27, 0)), False)
sketch14.addGeometry(Part.LineSegment(V(3, 27, 0), V(8, 27, 0)), False)
sketch14.addGeometry(Part.LineSegment(V(8, 27, 0), V(8, 0, 0)), False)
sketch14.addGeometry(Part.LineSegment(V(8, 0, 0), V(3, 0, 0)), False)
sketch14.addConstraint(Sketcher.Constraint("Coincident", 0, 2, 1, 1))
sketch14.addConstraint(Sketcher.Constraint("Coincident", 1, 2, 2, 1))
sketch14.addConstraint(Sketcher.Constraint("Coincident", 2, 2, 3, 1))
sketch14.addConstraint(Sketcher.Constraint("Coincident", 3, 2, 0, 1))
sketch14.addConstraint(Sketcher.Constraint("Vertical", 0))
sketch14.addConstraint(Sketcher.Constraint("Horizontal", 1))
sketch14.addConstraint(Sketcher.Constraint("Vertical", 2))
sketch14.addConstraint(Sketcher.Constraint("Horizontal", 3))
sketch14.addConstraint(Sketcher.Constraint("PointOnObject", 2, 2, -1))
sketch14.addConstraint(Sketcher.Constraint("DistanceX", 1, 1, 1, 2, 5.0))
sketch14.addConstraint(Sketcher.Constraint("DistanceY", 0, 1, 0, 2, 27.02))
sketch14.addConstraint(Sketcher.Constraint("DistanceX", -1, 1, 0, 2, 2.845109))
pad8 = body.newObject("PartDesign::Pad", "Pad007")
pad8.Profile = sketch14
pad8.Length = 5
pad8.Reversed = True

sketch15 = body.newObject("Sketcher::SketchObject", "Sketch014")
sketch15.AttachmentSupport = (doc.getObject("XZ_Plane"), [""])
sketch15.MapMode = "FlatFace"
sketch15.AttachmentOffset = App.Placement(V(0, 0, -6.903171), App.Rotation())
sketch15.addGeometry(Part.LineSegment(V(13, 0, 0), V(13, 22, 0)), False)
sketch15.addGeometry(Part.LineSegment(V(13, 22, 0), V(18, 22, 0)), False)
sketch15.addGeometry(Part.LineSegment(V(18, 22, 0), V(18, 0, 0)), False)
sketch15.addGeometry(Part.LineSegment(V(18, 0, 0), V(13, 0, 0)), False)
sketch15.addConstraint(Sketcher.Constraint("Coincident", 0, 2, 1, 1))
sketch15.addConstraint(Sketcher.Constraint("Coincident", 1, 2, 2, 1))
sketch15.addConstraint(Sketcher.Constraint("Coincident", 2, 2, 3, 1))
sketch15.addConstraint(Sketcher.Constraint("Coincident", 3, 2, 0, 1))
sketch15.addConstraint(Sketcher.Constraint("Vertical", 0))
sketch15.addConstraint(Sketcher.Constraint("Horizontal", 1))
sketch15.addConstraint(Sketcher.Constraint("Vertical", 2))
sketch15.addConstraint(Sketcher.Constraint("Horizontal", 3))
sketch15.addConstraint(Sketcher.Constraint("PointOnObject", 2, 2, -1))
sketch15.addConstraint(Sketcher.Constraint("DistanceX", 1, 1, 1, 2, 5.0))
sketch15.addConstraint(Sketcher.Constraint("DistanceY", 0, 1, 0, 2, 22.0))
sketch15.addConstraint(Sketcher.Constraint("DistanceX", -1, 1, 0, 2, 12.845109))
pad9 = body.newObject("PartDesign::Pad", "Pad008")
pad9.Profile = sketch15
pad9.Length = 44

sketch16 = body.newObject("Sketcher::SketchObject", "Sketch015")
sketch16.AttachmentSupport = (doc.getObject("XZ_Plane"), [""])
sketch16.MapMode = "FlatFace"
sketch16.AttachmentOffset = App.Placement(V(0, 0, 32.096829), App.Rotation())
sketch16.addGeometry(Part.LineSegment(V(8, 0, 0), V(8, 27, 0)), False)
sketch16.addGeometry(Part.LineSegment(V(8, 27, 0), V(3, 27, 0)), False)
sketch16.addGeometry(Part.LineSegment(V(3, 27, 0), V(3, 0, 0)), False)
sketch16.addGeometry(Part.LineSegment(V(3, 0, 0), V(8, 0, 0)), False)
sketch16.addConstraint(Sketcher.Constraint("Coincident", 0, 2, 1, 1))
sketch16.addConstraint(Sketcher.Constraint("Coincident", 1, 2, 2, 1))
sketch16.addConstraint(Sketcher.Constraint("Coincident", 2, 2, 3, 1))
sketch16.addConstraint(Sketcher.Constraint("Coincident", 3, 2, 0, 1))
sketch16.addConstraint(Sketcher.Constraint("Vertical", 0))
sketch16.addConstraint(Sketcher.Constraint("Horizontal", 1))
sketch16.addConstraint(Sketcher.Constraint("Vertical", 2))
sketch16.addConstraint(Sketcher.Constraint("Horizontal", 3))
sketch16.addConstraint(Sketcher.Constraint("PointOnObject", 2, 2, -1))
sketch16.addConstraint(Sketcher.Constraint("DistanceX", 1, 2, 1, 1, 5.0))
sketch16.addConstraint(Sketcher.Constraint("DistanceY", 0, 1, 0, 2, 27.02))
sketch16.addConstraint(Sketcher.Constraint("DistanceX", -1, 1, 0, 2, 7.845109))
pad10 = body.newObject("PartDesign::Pad", "Pad009")
pad10.Profile = sketch16
pad10.Length = 5

sketch17 = body.newObject("Sketcher::SketchObject", "Sketch016")
sketch17.AttachmentSupport = (doc.getObject("XY_Plane"), [""])
sketch17.MapMode = "FlatFace"
sketch17.AttachmentOffset = App.Placement(V(0, 0, 22), App.Rotation())
sketch17.addGeometry(Part.LineSegment(V(13, 7, 0), V(13, -37, 0)), False)
sketch17.addGeometry(Part.LineSegment(V(13, -37, 0), V(18, -37, 0)), False)
sketch17.addGeometry(Part.LineSegment(V(18, -37, 0), V(18, 7, 0)), False)
sketch17.addGeometry(Part.LineSegment(V(18, 7, 0), V(13, 7, 0)), False)
sketch17.addConstraint(Sketcher.Constraint("Coincident", 0, 2, 1, 1))
sketch17.addConstraint(Sketcher.Constraint("Coincident", 1, 2, 2, 1))
sketch17.addConstraint(Sketcher.Constraint("Coincident", 2, 2, 3, 1))
sketch17.addConstraint(Sketcher.Constraint("Coincident", 3, 2, 0, 1))
sketch17.addConstraint(Sketcher.Constraint("Vertical", 0))
sketch17.addConstraint(Sketcher.Constraint("Horizontal", 1))
sketch17.addConstraint(Sketcher.Constraint("Vertical", 2))
sketch17.addConstraint(Sketcher.Constraint("Horizontal", 3))
sketch17.addConstraint(Sketcher.Constraint("DistanceX", 1, 1, 1, 2, 5.0))
sketch17.addConstraint(Sketcher.Constraint("DistanceY", 0, 2, 0, 1, 44.0))
sketch17.addConstraint(Sketcher.Constraint("DistanceX", -1, 1, 0, 2, 12.845109))
sketch17.addConstraint(Sketcher.Constraint("DistanceY", 0, 2, -1, 1, 37.096829))
pad11 = body.newObject("PartDesign::Pad", "Pad010")
pad11.Profile = sketch17
pad11.Type = "TwoLengths"
pad11.Length = 5.02
pad11.Length2 = 2

sketch18 = body.newObject("Sketcher::SketchObject", "Sketch017")
sketch18.AttachmentSupport = (doc.getObject("YZ_Plane"), [""])
sketch18.MapMode = "FlatFace"
sketch18.AttachmentOffset = App.Placement(V(0, 0, -33.354891), App.Rotation())
sketch18.addGeometry(Part.LineSegment(V(2, 0, 0), V(-32, 0, 0)), False)
sketch18.addGeometry(Part.LineSegment(V(-32, 0, 0), V(-32, 20, 0)), False)
sketch18.addGeometry(Part.LineSegment(V(-32, 20, 0), V(2, 20, 0)), False)
sketch18.addGeometry(Part.LineSegment(V(2, 20, 0), V(2, 0, 0)), False)
sketch18.addConstraint(Sketcher.Constraint("Coincident", 0, 2, 1, 1))
sketch18.addConstraint(Sketcher.Constraint("Coincident", 1, 2, 2, 1))
sketch18.addConstraint(Sketcher.Constraint("Coincident", 2, 2, 3, 1))
sketch18.addConstraint(Sketcher.Constraint("Coincident", 3, 2, 0, 1))
sketch18.addConstraint(Sketcher.Constraint("Horizontal", 0))
sketch18.addConstraint(Sketcher.Constraint("Vertical", 1))
sketch18.addConstraint(Sketcher.Constraint("Horizontal", 2))
sketch18.addConstraint(Sketcher.Constraint("Vertical", 3))
sketch18.addConstraint(Sketcher.Constraint("PointOnObject", 0, 2, -1))
sketch18.addConstraint(Sketcher.Constraint("DistanceX", 0, 2, 0, 1, 34.0))
sketch18.addConstraint(Sketcher.Constraint("DistanceY", 1, 1, 1, 2, 20.0))
sketch18.addConstraint(Sketcher.Constraint("DistanceX", 0, 2, -1, 1, 32.096829))
pocket7 = body.newObject("PartDesign::Pocket", "Pocket006")
pocket7.Profile = sketch18
pocket7.Length = 5
pocket7.Reversed = True

doc.recompute()
